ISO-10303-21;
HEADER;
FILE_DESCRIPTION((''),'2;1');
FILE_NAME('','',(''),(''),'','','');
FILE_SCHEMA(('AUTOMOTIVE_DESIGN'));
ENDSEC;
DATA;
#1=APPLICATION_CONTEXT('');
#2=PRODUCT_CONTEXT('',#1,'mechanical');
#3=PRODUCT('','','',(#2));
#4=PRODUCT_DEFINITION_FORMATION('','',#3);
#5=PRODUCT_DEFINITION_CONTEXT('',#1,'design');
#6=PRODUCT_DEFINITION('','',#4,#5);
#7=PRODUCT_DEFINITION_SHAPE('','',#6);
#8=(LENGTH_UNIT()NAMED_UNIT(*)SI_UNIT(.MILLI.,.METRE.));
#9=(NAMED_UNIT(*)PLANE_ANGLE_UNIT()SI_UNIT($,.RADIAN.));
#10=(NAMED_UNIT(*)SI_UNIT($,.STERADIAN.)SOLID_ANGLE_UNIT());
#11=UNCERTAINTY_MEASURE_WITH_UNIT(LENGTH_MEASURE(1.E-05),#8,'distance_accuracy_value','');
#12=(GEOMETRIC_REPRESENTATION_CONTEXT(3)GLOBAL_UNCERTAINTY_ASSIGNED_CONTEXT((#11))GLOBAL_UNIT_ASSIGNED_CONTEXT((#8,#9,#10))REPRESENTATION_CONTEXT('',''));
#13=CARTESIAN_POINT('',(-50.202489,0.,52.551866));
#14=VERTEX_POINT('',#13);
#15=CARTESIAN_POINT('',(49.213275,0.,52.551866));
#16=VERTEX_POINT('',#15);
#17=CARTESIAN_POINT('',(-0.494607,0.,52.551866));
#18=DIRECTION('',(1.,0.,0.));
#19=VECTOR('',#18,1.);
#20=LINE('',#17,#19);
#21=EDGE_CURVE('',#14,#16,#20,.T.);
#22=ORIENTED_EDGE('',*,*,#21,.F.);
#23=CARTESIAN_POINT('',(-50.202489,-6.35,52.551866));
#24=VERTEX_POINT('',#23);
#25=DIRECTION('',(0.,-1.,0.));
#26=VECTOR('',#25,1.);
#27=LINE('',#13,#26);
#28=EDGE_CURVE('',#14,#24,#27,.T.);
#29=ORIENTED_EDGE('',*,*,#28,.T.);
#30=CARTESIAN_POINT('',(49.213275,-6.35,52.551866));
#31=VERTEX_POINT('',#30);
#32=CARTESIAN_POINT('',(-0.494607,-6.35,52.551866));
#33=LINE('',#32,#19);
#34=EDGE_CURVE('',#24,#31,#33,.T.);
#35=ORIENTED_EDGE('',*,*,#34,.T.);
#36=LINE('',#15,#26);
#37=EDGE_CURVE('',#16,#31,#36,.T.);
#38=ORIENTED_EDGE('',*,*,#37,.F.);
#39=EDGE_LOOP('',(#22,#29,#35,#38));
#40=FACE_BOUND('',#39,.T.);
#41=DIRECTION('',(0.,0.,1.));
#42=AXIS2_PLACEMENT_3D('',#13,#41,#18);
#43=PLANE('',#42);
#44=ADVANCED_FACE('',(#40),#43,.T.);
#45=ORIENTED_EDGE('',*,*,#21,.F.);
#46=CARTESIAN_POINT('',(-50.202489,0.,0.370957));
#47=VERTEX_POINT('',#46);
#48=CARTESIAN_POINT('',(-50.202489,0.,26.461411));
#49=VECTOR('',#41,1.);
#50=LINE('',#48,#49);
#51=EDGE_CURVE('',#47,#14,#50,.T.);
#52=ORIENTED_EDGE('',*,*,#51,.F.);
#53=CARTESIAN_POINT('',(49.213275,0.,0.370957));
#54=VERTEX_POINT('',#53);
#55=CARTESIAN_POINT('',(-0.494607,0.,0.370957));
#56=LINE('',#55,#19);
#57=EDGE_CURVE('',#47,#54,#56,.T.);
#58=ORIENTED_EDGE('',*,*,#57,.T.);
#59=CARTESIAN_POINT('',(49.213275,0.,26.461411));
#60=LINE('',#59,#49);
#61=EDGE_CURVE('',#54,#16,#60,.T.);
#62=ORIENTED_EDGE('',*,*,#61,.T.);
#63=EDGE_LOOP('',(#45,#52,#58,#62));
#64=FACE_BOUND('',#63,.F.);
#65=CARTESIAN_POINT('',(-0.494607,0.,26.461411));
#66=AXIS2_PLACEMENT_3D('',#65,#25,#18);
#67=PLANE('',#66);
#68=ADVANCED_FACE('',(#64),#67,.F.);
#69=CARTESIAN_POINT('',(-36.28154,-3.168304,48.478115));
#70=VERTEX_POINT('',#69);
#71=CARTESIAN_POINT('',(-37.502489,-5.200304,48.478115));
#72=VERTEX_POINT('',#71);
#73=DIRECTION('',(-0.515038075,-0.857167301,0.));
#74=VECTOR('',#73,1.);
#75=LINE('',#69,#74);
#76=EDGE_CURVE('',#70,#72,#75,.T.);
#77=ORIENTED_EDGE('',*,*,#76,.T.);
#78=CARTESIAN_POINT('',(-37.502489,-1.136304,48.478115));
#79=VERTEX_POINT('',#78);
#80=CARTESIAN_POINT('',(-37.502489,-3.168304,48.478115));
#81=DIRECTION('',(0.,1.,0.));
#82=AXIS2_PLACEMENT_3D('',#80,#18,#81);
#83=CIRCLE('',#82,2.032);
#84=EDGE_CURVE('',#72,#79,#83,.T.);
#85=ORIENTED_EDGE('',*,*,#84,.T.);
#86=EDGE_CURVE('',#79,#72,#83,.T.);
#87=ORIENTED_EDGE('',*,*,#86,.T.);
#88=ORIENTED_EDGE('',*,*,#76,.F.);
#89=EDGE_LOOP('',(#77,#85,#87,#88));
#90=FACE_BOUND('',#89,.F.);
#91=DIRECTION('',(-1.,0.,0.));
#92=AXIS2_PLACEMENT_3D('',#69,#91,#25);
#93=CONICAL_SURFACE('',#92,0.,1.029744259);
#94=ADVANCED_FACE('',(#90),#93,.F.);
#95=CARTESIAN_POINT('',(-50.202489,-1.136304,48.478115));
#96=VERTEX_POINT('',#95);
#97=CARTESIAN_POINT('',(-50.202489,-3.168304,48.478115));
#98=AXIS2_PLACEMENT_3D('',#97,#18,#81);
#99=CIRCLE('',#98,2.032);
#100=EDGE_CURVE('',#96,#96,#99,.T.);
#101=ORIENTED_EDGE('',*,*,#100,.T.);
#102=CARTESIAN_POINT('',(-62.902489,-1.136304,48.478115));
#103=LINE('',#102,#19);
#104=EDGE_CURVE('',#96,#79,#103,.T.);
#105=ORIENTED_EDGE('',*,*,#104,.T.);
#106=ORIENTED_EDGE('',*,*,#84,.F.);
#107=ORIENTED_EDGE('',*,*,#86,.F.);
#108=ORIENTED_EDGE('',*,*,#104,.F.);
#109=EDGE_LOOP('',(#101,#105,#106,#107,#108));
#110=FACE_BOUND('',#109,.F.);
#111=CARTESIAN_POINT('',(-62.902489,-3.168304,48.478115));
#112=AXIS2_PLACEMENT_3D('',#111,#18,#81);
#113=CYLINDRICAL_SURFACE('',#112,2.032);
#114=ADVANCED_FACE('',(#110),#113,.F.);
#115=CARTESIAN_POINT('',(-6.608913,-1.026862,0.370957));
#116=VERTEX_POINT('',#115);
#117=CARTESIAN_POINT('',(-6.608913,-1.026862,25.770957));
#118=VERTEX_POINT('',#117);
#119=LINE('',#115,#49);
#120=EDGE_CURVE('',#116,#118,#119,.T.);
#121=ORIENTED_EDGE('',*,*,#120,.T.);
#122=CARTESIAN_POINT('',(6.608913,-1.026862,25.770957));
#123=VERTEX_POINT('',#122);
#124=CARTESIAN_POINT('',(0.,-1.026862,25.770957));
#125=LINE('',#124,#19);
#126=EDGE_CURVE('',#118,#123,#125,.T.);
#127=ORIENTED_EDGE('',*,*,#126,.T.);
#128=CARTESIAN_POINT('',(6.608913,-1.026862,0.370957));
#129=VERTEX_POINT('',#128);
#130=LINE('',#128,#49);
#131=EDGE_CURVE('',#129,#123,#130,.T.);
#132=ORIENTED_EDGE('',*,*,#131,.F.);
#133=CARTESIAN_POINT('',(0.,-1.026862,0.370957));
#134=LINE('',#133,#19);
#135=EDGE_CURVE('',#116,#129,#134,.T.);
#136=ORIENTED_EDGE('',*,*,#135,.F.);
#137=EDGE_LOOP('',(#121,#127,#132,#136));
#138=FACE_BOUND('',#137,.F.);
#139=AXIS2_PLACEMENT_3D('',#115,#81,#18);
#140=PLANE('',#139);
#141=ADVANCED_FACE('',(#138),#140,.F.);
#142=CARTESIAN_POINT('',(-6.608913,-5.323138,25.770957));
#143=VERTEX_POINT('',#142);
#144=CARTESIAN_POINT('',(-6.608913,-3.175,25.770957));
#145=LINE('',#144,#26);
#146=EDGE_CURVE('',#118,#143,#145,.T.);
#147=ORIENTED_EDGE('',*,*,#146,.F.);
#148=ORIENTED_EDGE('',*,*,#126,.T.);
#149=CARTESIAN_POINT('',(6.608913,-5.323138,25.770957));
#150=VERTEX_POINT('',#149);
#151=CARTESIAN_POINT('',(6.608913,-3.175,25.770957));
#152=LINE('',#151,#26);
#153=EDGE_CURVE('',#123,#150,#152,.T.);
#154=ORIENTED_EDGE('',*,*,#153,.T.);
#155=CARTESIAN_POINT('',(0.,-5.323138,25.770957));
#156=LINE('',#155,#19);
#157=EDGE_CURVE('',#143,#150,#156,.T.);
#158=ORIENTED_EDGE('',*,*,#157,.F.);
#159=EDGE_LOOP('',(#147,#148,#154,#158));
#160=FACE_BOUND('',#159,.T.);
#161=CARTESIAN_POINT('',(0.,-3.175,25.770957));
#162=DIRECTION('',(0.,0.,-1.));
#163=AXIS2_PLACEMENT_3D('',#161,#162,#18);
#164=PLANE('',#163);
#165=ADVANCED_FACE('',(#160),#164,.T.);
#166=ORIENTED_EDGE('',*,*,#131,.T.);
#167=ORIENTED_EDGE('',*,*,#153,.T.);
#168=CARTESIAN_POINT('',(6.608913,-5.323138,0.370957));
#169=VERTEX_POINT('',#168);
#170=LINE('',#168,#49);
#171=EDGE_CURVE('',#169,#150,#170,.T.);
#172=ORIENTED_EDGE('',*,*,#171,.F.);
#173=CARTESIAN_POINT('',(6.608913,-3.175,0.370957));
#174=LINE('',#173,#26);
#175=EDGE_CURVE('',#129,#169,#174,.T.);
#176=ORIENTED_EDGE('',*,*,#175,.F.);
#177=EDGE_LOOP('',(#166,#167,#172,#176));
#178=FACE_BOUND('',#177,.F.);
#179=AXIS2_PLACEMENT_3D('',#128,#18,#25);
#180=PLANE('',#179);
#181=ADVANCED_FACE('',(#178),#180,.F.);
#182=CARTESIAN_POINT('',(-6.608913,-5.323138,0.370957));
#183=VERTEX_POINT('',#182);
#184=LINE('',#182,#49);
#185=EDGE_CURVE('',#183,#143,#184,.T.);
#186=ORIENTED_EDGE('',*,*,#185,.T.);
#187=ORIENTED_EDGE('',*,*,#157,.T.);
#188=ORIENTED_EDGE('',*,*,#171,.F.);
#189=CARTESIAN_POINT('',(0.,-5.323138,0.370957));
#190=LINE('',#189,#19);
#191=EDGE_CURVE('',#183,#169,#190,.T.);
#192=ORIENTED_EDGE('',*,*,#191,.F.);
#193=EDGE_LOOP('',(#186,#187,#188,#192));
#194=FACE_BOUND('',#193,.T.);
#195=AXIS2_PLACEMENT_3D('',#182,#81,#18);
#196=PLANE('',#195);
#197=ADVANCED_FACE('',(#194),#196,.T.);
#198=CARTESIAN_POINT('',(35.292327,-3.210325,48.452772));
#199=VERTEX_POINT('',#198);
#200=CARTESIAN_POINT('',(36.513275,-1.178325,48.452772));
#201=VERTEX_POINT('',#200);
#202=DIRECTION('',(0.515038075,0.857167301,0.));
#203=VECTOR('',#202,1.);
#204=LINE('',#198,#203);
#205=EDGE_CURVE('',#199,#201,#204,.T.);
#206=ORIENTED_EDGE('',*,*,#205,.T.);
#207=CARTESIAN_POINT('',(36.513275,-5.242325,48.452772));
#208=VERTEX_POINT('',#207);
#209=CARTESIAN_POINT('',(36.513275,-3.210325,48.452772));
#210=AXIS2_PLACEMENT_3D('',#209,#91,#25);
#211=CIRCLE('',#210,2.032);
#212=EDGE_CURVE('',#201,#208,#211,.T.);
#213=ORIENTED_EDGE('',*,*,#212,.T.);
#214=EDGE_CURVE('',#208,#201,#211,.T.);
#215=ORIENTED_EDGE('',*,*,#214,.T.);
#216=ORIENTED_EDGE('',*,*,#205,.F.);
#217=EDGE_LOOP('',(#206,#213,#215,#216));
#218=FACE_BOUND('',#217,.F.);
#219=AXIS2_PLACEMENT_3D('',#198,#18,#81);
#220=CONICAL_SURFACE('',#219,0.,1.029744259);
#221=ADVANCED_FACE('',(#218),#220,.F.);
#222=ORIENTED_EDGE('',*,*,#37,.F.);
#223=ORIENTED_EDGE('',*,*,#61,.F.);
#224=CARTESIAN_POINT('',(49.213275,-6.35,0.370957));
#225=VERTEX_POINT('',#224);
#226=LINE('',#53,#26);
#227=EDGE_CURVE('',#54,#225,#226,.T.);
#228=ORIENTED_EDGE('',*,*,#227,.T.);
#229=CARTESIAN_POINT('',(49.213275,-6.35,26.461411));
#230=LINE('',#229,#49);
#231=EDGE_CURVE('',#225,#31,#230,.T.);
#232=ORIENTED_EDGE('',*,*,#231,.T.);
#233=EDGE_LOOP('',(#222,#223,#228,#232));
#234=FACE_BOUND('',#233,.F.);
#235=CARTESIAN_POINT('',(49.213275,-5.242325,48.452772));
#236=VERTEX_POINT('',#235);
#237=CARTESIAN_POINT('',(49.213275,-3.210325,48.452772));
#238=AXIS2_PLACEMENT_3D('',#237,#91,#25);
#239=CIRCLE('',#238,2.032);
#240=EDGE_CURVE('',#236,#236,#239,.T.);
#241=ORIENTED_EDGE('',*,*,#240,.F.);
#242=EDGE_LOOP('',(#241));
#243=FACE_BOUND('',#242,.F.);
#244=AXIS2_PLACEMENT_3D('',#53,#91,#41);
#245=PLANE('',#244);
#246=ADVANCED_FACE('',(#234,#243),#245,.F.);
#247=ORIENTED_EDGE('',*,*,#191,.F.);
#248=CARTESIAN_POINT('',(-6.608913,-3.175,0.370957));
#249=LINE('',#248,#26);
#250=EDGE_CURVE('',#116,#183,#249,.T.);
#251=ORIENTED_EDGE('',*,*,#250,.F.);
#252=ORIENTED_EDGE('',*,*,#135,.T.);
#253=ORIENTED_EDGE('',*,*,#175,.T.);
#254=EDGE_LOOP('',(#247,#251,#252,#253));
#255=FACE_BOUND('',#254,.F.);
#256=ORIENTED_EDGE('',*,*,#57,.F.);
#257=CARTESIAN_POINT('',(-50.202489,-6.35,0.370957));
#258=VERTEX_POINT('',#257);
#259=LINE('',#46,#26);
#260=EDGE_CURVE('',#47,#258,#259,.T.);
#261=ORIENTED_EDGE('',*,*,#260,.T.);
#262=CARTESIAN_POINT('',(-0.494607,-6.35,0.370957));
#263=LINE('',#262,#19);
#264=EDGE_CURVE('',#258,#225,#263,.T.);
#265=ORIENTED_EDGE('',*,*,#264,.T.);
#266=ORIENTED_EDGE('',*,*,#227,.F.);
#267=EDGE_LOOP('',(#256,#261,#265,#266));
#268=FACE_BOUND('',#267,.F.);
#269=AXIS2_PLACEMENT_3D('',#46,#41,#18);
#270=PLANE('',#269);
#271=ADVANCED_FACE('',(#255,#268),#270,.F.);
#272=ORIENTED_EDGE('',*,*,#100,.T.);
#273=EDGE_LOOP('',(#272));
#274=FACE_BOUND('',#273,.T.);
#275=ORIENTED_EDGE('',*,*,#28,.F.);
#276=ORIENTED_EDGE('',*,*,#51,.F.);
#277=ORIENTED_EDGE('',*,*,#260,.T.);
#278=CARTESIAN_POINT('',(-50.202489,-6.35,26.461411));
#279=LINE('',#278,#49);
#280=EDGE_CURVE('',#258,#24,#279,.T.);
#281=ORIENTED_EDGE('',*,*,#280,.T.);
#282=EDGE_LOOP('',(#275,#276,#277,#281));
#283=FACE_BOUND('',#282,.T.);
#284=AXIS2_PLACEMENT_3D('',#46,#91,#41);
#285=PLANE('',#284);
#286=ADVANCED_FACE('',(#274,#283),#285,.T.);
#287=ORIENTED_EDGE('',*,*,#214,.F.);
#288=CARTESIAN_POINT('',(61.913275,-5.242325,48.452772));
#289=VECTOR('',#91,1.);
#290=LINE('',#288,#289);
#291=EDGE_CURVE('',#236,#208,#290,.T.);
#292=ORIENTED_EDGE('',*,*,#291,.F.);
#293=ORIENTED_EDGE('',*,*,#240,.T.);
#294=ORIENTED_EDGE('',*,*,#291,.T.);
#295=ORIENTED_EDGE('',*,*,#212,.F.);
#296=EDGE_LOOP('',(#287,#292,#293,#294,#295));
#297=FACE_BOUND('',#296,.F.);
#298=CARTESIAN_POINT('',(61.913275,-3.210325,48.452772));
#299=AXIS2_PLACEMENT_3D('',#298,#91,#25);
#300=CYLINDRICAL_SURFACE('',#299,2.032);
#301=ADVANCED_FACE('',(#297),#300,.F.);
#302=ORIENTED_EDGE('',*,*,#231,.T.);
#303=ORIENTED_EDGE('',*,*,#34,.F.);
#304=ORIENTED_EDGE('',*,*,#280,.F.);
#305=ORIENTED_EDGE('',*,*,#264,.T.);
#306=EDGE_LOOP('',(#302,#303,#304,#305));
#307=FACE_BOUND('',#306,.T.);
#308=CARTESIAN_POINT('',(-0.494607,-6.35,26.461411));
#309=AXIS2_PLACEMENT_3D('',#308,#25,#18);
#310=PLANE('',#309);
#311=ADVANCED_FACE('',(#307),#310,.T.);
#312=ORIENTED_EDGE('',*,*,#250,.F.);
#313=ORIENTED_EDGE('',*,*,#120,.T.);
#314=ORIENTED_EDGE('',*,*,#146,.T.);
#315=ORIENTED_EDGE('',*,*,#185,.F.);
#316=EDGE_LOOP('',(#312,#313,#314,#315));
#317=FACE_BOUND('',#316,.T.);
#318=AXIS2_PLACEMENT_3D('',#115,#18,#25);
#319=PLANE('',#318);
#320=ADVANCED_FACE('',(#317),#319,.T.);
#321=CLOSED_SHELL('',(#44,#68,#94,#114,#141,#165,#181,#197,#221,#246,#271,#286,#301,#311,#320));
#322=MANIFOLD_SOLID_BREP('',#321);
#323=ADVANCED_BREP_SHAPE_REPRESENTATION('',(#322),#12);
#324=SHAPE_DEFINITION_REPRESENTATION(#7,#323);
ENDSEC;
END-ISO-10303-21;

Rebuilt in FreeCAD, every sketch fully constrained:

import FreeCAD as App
import Part
import Sketcher
from FreeCAD import Vector
Q = App.Units.Quantity


def add_polygon(sketch, points):
    """Adds a closed chain of lines whose ends are joined by coincident constraints."""
    first, n = sketch.GeometryCount, len(points)
    for a, b in zip(points, points[1:] + points[:1]):
        sketch.addGeometry(Part.LineSegment(App.Vector(*a, 0), App.Vector(*b, 0)), False)
    for i in range(n):
        sketch.addConstraint(Sketcher.Constraint("Coincident", first + i, 2, first + (i + 1) % n, 1))

doc = App.newDocument("Part")
body = doc.addObject("PartDesign::Body", "Body")

# Sketch on XZ plane
sketch1 = body.newObject("Sketcher::SketchObject", "Sketch")
sketch1.AttachmentSupport = (doc.getObject("XZ_Plane"), [""])
sketch1.MapMode = "FlatFace"
add_polygon(sketch1, [(-50, 53), (-50, 0), (49, 0), (49, 53)])  # lines 0-3
sketch1.addConstraint([
    Sketcher.Constraint("Vertical", 0),
    Sketcher.Constraint("Horizontal", 1),
    Sketcher.Constraint("Vertical", 2),
    Sketcher.Constraint("Horizontal", 3),
    Sketcher.Constraint("DistanceY", 0, 2, 0, 1, 52.180909),
    Sketcher.Constraint("DistanceX", 1, 1, 1, 2, 99.415764),
    Sketcher.Constraint("DistanceX", 0, 2, -1, 1, 50.202489),
    Sketcher.Constraint("DistanceY", -1, 1, 0, 2, 0.370957),
])
pad1 = body.newObject("PartDesign::Pad", "Pad")
pad1.Profile = sketch1
pad1.Length = Q("0.25 in")

# Sketch on YZ plane
sketch2 = body.newObject("Sketcher::SketchObject", "Sketch001")
sketch2.AttachmentSupport = (doc.getObject("YZ_Plane"), [""])
sketch2.MapMode = "FlatFace"
sketch2.AttachmentOffset = App.Placement(Vector(0, 0, 49.213275), App.Rotation())
sketch2.addGeometry(Part.Circle(Vector(-3.2, 48.5, 0), Vector(0, 0, 1), 2), False)
sketch2.addConstraint([
    Sketcher.Constraint("Diameter", 0, Q("0.16 in")),
    Sketcher.Constraint("DistanceX", 0, 3, -1, 1, 3.210325),
    Sketcher.Constraint("DistanceY", -1, 1, 0, 3, 48.452772),
])
doc.recompute()
hole = body.newObject("PartDesign::Hole", "Hole")
hole.Profile = sketch2
hole.ThreadType = "None"
hole.Diameter = Q("0.16 in")
hole.DepthType = "Dimension"
hole.Depth = Q("0.5 in")
hole.DrillPoint = "Angled"
hole.DrillPointAngle = 118

# Sketch on YZ plane
sketch3 = body.newObject("Sketcher::SketchObject", "Sketch002")
sketch3.AttachmentSupport = (doc.getObject("YZ_Plane"), [""])
sketch3.MapMode = "FlatFace"
sketch3.AttachmentOffset = App.Placement(Vector(0, 0, -50.202489), App.Rotation())
sketch3.addGeometry(Part.Circle(Vector(-3.2, 48.5, 0), Vector(0, 0, 1), 2), False)
sketch3.addConstraint([
    Sketcher.Constraint("Diameter", 0, Q("0.16 in")),
    Sketcher.Constraint("DistanceX", 0, 3, -1, 1, 3.168304),
    Sketcher.Constraint("DistanceY", -1, 1, 0, 3, 48.478115),
])
doc.recompute()
hole2 = body.newObject("PartDesign::Hole", "Hole001")
hole2.Profile = sketch3
hole2.ThreadType = "None"
hole2.Diameter = Q("0.16 in")
hole2.DepthType = "Dimension"
hole2.Depth = Q("0.5 in")
hole2.DrillPoint = "Angled"
hole2.DrillPointAngle = 118
hole2.Reversed = True

# Sketch on XY plane
sketch4 = body.newObject("Sketcher::SketchObject", "Sketch003")
sketch4.AttachmentSupport = (doc.getObject("XY_Plane"), [""])
sketch4.MapMode = "FlatFace"
sketch4.AttachmentOffset = App.Placement(Vector(0, 0, 0.370957), App.Rotation())
add_polygon(sketch4, [(-6.6, -5.3), (-6.6, -1), (6.6, -1), (6.6, -5.3)])  # lines 0-3
sketch4.addConstraint([
    Sketcher.Constraint("Vertical", 0),
    Sketcher.Constraint("Horizontal", 1),
    Sketcher.Constraint("Vertical", 2),
    Sketcher.Constraint("Horizontal", 3),
    Sketcher.Constraint("DistanceX", 1, 1, 1, 2, 13.217825),
    Sketcher.Constraint("DistanceY", 0, 1, 0, 2, 4.296275),
    Sketcher.Constraint("DistanceX", 0, 2, -1, 1, 6.608913),
    Sketcher.Constraint("DistanceY", 0, 2, -1, 1, 1.026862),
])
pocket1 = body.newObject("PartDesign::Pocket", "Pocket")
pocket1.Profile = sketch4
pocket1.Length = Q("1 in")
pocket1.Reversed = True

doc.recompute()
